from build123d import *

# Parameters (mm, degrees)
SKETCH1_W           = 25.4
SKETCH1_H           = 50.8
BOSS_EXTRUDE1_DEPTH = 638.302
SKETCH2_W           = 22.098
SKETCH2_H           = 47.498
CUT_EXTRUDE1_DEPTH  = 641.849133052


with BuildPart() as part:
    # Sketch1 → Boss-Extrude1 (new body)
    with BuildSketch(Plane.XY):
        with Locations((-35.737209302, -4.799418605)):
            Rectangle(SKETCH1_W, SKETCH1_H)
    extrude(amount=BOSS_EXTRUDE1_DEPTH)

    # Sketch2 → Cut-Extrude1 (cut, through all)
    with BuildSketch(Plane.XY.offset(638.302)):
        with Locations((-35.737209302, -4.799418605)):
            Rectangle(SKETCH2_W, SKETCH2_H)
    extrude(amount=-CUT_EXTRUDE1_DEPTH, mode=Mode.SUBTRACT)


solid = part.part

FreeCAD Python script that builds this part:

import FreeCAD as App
import Part
import Sketcher
from FreeCAD import Vector
Q = App.Units.Quantity

doc = App.newDocument("Part")
params = doc.addObject("Spreadsheet::Sheet", "Params")
for row, (alias, value) in enumerate([
    ("sketch1_width", "1 in"),
    ("sketch1_height", "2 in"),
    ("pad1_length", "25.13 in"),
    ("sketch2_width", "0.87 in"),
    ("sketch2_height", "1.87 in"),
], start=1):
    params.set(f"A{row}", alias)
    params.set(f"B{row}", "=" + value)
    params.setAlias(f"B{row}", alias)

body = doc.addObject("PartDesign::Body", "Body")

sketch1 = doc.addObject("Sketcher::SketchObject", "Sketch")
body.addObject(sketch1)
sketch1.AttachmentSupport = (doc.XY_Plane, [""])
sketch1.MapMode = "FlatFace"
sketch1.addGeometry([
    Part.LineSegment(Vector(-48, 21, 0), Vector(-48, -30, 0)),
    Part.LineSegment(Vector(-48, -30, 0), Vector(-23, -30, 0)),
    Part.LineSegment(Vector(-23, -30, 0), Vector(-23, 21, 0)),
    Part.LineSegment(Vector(-23, 21, 0), Vector(-48, 21, 0)),
], False)
sketch1.addConstraint([
    Sketcher.Constraint("Coincident", 0, 2, 1, 1),
    Sketcher.Constraint("Coincident", 1, 2, 2, 1),
    Sketcher.Constraint("Coincident", 2, 2, 3, 1),
    Sketcher.Constraint("Coincident", 3, 2, 0, 1),
    Sketcher.Constraint("Vertical", 0),
    Sketcher.Constraint("Horizontal", 1),
    Sketcher.Constraint("Vertical", 2),
    Sketcher.Constraint("Horizontal", 3),
    Sketcher.Constraint("DistanceX", 1, 1, 1, 2, Q("1 in")),
    Sketcher.Constraint("DistanceY", 0, 2, 0, 1, Q("2 in")),
    Sketcher.Constraint("DistanceX", 0, 2, -1, 1, Q("48.437209 mm")),
    Sketcher.Constraint("DistanceY", 0, 2, -1, 1, Q("30.199419 mm")),
])
sketch1.setExpression("Constraints[8]", "Params.sketch1_width")
sketch1.setExpression("Constraints[9]", "Params.sketch1_height")
pad1 = doc.addObject("PartDesign::Pad", "Pad")
body.addObject(pad1)
pad1.Profile = sketch1
pad1.setExpression("Length", "Params.pad1_length")

sketch2 = doc.addObject("Sketcher::SketchObject", "Sketch001")
body.addObject(sketch2)
sketch2.AttachmentSupport = (doc.XY_Plane, [""])
sketch2.MapMode = "FlatFace"
sketch2.AttachmentOffset = App.Placement(Vector(0, 0, 25.13 * 25.4), App.Rotation())
sketch2.addGeometry([
    Part.LineSegment(Vector(-47, 19, 0), Vector(-47, -29, 0)),
    Part.LineSegment(Vector(-47, -29, 0), Vector(-25, -29, 0)),
    Part.LineSegment(Vector(-25, -29, 0), Vector(-25, 19, 0)),
    Part.LineSegment(Vector(-25, 19, 0), Vector(-47, 19, 0)),
], False)
sketch2.addConstraint([
    Sketcher.Constraint("Coincident", 0, 2, 1, 1),
    Sketcher.Constraint("Coincident", 1, 2, 2, 1),
    Sketcher.Constraint("Coincident", 2, 2, 3, 1),
    Sketcher.Constraint("Coincident", 3, 2, 0, 1),
    Sketcher.Constraint("Vertical", 0),
    Sketcher.Constraint("Horizontal", 1),
    Sketcher.Constraint("Vertical", 2),
    Sketcher.Constraint("Horizontal", 3),
    Sketcher.Constraint("DistanceX", 1, 1, 1, 2, Q("0.87 in")),
    Sketcher.Constraint("DistanceY", 0, 2, 0, 1, Q("1.87 in")),
    Sketcher.Constraint("DistanceX", 0, 2, -1, 1, Q("46.786209 mm")),
    Sketcher.Constraint("DistanceY", 0, 2, -1, 1, Q("28.548419 mm")),
])
sketch2.setExpression("Constraints[8]", "Params.sketch2_width")
sketch2.setExpression("Constraints[9]", "Params.sketch2_height")
pocket1 = doc.addObject("PartDesign::Pocket", "Pocket")
body.addObject(pocket1)
pocket1.Profile = sketch2
pocket1.Type = "ThroughAll"

doc.recompute()
